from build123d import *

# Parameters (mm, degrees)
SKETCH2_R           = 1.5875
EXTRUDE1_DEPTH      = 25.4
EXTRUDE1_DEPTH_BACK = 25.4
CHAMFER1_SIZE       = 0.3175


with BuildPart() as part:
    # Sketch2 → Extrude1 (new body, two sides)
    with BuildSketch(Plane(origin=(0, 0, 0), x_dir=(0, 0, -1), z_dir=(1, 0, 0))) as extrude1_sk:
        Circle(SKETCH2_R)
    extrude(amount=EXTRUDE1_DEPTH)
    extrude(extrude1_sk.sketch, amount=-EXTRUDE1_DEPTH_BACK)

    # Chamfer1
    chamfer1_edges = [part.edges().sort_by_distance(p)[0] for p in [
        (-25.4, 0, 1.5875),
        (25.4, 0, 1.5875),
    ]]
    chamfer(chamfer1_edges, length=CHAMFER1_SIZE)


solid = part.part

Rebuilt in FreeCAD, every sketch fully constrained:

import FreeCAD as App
import Part
import Sketcher

V = App.Vector
Q = App.Units.Quantity


def edges_at(feature, points):
    """Names of the edges that pass closest to the given points."""
    edges = feature.Shape.Edges
    near = lambda p: min(range(len(edges)), key=lambda i: edges[i].distToShape(Part.Vertex(*p))[0])
    return sorted({f"Edge{near(p) + 1}" for p in points})

doc = App.newDocument("Part")
body = doc.addObject("PartDesign::Body", "Body")

# Sketch on YZ plane
sketch1 = body.newObject("Sketcher::SketchObject", "Sketch")
sketch1.AttachmentSupport = (doc.getObject("YZ_Plane"), [""])
sketch1.MapMode = "FlatFace"
sketch1.addGeometry(Part.Circle(V(0, 0, 0), V(0, 0, 1), 1.6), False)
sketch1.addConstraint(Sketcher.Constraint("Coincident", 0, 3, -1, 1))
sketch1.addConstraint(Sketcher.Constraint("Diameter", 0, Q("0.125 in")))
pad1 = body.newObject("PartDesign::Pad", "Pad")
pad1.Profile = sketch1
pad1.Type = "TwoLengths"
pad1.Length = Q("1 in")
pad1.Length2 = Q("1 in")
doc.recompute()

chamfer = body.newObject("PartDesign::Chamfer", "Chamfer")
chamfer.Base = (pad1, edges_at(pad1, [(-25.4, 0, 1.587), (25.4, 0, 1.587)]))
chamfer.Size = Q("0.0125 in")

doc.recompute()
